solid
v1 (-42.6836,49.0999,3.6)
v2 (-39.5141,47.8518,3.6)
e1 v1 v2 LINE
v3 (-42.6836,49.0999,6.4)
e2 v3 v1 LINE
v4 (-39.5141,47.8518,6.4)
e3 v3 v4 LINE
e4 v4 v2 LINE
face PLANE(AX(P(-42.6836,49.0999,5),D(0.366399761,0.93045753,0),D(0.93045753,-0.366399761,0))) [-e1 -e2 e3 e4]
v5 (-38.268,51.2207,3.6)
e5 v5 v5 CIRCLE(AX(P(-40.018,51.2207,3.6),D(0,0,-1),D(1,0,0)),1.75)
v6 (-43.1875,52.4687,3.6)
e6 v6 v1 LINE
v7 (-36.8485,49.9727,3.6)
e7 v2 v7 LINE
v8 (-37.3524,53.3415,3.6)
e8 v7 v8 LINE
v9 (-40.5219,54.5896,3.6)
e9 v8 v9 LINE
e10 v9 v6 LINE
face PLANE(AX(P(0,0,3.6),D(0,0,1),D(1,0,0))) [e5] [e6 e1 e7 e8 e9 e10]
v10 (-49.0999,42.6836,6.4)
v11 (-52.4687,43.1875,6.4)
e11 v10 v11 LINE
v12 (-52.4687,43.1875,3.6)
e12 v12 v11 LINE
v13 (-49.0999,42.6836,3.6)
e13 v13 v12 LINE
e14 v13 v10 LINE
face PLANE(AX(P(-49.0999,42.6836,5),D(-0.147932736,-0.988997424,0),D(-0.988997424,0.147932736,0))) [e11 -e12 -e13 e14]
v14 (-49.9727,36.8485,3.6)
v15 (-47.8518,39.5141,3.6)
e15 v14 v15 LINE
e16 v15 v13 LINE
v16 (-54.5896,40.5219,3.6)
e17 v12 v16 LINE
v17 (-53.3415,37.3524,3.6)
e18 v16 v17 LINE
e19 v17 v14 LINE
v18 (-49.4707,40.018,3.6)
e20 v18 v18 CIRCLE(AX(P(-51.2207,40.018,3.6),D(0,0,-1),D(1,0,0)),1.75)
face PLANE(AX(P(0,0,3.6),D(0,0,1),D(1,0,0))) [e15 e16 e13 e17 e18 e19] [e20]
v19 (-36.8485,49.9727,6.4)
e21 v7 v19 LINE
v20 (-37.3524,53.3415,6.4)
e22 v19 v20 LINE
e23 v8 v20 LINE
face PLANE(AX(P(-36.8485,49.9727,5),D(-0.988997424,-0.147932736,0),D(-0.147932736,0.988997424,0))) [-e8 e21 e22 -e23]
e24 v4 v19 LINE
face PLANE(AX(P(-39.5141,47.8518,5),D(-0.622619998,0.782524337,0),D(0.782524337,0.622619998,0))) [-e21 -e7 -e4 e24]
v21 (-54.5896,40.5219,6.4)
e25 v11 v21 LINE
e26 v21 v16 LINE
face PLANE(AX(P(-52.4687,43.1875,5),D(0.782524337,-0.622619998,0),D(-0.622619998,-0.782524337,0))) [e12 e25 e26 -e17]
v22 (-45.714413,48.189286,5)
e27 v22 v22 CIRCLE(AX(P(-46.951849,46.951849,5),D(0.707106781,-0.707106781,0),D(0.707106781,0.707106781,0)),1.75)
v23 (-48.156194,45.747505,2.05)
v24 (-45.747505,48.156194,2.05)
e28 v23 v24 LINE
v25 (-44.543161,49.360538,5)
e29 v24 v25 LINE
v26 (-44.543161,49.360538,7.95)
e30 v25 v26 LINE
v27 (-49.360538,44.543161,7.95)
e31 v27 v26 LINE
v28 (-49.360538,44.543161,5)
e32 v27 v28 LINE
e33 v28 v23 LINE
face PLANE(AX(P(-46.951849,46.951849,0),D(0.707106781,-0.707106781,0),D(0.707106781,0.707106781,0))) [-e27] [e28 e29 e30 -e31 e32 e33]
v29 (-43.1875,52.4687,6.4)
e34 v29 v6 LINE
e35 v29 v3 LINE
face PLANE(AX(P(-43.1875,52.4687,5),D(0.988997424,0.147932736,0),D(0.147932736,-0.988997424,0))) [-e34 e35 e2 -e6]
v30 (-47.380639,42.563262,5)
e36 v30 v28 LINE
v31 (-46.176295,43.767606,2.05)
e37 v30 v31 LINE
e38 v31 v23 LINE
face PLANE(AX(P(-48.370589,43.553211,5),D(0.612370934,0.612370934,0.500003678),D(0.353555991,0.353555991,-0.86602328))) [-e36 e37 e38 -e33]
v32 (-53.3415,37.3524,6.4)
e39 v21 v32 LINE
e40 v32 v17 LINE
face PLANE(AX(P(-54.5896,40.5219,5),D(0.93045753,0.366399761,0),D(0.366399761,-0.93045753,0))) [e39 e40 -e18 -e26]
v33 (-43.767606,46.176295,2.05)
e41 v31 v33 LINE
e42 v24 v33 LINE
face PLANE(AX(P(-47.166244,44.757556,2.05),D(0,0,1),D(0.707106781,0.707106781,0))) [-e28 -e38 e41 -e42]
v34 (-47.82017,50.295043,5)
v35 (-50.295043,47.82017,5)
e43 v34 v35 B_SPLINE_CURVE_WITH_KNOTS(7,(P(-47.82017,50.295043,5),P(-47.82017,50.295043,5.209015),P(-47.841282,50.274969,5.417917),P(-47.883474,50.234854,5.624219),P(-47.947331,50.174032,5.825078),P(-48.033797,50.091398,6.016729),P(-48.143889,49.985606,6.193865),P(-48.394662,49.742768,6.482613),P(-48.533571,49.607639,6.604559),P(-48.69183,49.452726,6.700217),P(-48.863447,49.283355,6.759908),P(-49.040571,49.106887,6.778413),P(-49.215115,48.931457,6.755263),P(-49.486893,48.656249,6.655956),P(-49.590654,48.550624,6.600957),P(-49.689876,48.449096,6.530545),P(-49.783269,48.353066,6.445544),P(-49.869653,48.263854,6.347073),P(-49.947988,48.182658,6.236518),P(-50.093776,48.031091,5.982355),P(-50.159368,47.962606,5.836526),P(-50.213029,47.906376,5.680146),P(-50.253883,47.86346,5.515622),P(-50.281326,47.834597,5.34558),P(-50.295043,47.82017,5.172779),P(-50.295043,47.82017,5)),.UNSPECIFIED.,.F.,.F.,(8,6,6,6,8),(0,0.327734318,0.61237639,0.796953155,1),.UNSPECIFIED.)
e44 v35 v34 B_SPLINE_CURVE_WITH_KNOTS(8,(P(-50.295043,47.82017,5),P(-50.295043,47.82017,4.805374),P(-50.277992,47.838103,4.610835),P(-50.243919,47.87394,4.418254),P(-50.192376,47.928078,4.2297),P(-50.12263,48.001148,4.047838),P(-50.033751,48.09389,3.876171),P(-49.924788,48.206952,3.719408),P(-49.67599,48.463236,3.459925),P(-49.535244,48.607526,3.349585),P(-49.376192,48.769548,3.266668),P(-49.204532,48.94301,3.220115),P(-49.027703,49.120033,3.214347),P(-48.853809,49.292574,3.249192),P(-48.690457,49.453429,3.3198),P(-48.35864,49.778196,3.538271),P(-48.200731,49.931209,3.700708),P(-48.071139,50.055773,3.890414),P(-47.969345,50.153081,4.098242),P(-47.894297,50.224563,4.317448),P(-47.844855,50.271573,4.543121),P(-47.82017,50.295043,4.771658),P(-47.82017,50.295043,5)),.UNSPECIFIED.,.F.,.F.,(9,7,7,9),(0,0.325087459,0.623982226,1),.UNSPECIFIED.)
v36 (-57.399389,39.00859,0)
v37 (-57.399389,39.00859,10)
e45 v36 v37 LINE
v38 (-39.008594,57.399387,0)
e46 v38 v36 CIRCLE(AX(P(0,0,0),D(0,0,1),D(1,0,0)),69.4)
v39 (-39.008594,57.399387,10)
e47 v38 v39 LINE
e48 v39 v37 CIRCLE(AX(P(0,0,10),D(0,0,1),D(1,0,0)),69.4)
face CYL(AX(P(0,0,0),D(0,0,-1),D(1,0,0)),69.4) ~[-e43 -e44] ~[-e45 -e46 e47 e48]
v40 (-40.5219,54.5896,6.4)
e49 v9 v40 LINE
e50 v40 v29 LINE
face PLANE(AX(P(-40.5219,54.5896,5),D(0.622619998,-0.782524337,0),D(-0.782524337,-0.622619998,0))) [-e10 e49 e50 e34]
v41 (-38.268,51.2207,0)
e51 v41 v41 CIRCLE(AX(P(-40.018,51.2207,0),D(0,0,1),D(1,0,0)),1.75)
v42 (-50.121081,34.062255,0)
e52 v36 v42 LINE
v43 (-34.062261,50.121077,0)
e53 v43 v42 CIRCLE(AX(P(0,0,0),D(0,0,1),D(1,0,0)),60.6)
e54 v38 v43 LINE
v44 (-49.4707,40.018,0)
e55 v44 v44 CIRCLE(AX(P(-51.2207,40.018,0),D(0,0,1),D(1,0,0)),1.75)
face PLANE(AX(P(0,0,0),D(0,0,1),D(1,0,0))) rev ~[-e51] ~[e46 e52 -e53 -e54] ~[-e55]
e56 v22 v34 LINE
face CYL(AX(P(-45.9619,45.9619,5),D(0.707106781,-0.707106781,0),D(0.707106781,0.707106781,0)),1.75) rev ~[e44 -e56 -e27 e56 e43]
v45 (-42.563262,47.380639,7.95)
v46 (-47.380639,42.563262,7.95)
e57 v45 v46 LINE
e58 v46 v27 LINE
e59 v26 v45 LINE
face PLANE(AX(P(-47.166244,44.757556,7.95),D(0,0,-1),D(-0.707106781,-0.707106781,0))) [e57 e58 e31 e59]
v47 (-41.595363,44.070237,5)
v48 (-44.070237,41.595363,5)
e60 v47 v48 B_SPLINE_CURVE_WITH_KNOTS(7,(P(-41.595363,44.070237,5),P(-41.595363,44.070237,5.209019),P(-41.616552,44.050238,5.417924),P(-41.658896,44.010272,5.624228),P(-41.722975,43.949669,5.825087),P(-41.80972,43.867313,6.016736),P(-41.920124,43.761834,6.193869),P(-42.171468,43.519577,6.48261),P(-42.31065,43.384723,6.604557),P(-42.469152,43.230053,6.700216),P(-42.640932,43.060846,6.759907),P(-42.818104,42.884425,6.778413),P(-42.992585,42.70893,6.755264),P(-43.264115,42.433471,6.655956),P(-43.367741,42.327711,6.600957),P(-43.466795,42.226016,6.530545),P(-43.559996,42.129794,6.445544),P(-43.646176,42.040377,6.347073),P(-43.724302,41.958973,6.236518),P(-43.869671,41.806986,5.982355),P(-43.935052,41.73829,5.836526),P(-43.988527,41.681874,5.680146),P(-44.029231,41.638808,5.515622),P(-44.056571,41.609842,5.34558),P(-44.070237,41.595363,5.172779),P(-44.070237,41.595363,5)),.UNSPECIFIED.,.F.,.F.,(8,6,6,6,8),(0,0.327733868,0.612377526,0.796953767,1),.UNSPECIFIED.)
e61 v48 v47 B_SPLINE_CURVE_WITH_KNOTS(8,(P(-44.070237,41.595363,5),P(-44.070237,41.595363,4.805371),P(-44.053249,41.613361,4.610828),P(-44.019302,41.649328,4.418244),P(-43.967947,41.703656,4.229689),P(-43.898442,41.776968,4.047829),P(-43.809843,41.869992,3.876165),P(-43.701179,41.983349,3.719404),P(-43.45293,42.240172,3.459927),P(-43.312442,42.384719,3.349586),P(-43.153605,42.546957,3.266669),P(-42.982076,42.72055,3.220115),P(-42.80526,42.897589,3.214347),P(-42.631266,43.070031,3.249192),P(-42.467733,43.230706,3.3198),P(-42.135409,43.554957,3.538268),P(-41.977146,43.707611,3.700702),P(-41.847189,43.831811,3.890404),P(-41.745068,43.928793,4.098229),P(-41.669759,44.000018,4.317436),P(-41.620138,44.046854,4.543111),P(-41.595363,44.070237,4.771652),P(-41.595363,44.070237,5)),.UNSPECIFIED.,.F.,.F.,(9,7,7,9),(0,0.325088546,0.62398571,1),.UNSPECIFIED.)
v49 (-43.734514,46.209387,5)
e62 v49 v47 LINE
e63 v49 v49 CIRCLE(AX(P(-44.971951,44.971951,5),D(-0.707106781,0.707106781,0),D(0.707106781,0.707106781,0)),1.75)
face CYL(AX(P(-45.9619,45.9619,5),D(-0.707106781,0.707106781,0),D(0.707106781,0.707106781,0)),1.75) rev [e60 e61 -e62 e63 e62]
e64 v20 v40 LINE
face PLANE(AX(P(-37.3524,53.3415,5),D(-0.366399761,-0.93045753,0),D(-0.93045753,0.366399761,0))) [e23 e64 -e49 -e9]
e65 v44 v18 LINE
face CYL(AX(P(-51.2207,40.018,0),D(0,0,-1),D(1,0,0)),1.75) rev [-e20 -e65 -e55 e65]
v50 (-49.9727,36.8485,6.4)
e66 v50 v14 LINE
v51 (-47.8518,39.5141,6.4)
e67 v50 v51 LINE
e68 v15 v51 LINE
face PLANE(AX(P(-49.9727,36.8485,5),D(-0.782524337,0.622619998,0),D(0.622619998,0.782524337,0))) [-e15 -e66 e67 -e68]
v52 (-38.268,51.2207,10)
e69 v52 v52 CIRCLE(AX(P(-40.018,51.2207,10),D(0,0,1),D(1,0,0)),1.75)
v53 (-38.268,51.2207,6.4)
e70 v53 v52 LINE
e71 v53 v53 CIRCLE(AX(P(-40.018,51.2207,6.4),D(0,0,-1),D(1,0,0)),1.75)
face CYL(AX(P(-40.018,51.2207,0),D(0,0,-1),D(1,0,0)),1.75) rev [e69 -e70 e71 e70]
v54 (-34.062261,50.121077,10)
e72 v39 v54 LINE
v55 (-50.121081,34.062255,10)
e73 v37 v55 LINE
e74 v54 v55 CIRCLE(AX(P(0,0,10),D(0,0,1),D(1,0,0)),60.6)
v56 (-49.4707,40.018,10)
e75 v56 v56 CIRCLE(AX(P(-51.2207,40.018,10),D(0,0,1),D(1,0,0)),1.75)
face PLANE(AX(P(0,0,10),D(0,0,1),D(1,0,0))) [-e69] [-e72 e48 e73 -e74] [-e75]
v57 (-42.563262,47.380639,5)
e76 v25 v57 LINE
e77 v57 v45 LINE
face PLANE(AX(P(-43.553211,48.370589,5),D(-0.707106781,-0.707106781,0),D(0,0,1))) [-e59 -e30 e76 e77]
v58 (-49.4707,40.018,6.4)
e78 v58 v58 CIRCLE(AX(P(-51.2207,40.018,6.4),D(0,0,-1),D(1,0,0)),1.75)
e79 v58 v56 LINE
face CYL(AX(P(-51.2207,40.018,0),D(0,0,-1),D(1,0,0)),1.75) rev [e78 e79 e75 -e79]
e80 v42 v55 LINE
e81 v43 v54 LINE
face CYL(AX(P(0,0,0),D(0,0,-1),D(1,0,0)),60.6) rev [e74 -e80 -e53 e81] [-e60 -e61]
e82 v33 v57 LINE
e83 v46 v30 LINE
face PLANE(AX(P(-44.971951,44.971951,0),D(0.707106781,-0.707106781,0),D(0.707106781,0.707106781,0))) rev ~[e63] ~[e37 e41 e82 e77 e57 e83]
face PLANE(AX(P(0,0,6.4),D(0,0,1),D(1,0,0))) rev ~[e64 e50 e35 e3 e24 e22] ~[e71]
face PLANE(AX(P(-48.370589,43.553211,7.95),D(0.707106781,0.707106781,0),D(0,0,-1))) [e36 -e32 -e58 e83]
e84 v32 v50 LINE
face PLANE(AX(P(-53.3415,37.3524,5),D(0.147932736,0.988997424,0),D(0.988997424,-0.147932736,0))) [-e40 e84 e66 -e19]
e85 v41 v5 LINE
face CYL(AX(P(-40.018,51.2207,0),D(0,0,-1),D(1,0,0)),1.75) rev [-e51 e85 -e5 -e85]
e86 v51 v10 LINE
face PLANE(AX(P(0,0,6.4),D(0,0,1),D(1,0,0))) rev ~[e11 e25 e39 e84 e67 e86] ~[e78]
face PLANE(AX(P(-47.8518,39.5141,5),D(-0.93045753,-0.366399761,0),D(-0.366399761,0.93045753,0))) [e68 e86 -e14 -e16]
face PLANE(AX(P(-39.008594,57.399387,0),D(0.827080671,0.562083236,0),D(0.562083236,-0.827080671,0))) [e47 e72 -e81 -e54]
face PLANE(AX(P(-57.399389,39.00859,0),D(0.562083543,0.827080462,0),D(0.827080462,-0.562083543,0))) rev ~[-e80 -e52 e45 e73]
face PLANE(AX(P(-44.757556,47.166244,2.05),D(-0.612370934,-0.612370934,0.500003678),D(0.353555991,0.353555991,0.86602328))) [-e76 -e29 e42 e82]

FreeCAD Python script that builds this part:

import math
import FreeCAD as App
import Part
import Sketcher
from FreeCAD import Vector
Q = App.Units.Quantity

doc = App.newDocument("Part")
body = doc.addObject("PartDesign::Body", "Body")

sketch1 = body.newObject("Sketcher::SketchObject", "Sketch")
sketch1.AttachmentSupport = (doc.getObject("XY_Plane"), [""])
sketch1.MapMode = "FlatFace"
sketch1.addGeometry([
    Part.ArcOfCircle(Part.Circle(Vector(0, 0, 0), Vector(0, 0, 1), 60.6), math.radians(124), math.radians(146)),
    Part.LineSegment(Vector(-34.1, 50.1, 0), Vector(-39, 57.4, 0)),
    Part.ArcOfCircle(Part.Circle(Vector(0, 0, 0), Vector(0, 0, 1), 69.4), math.radians(124), math.radians(146)),
    Part.LineSegment(Vector(-57.4, 39, 0), Vector(-50.1, 34.1, 0)),
    Part.Circle(Vector(-51.2, 40, 0), Vector(0, 0, 1), 1.8),
    Part.Circle(Vector(-40, 51.2, 0), Vector(0, 0, 1), 1.8),
], False)
sketch1.addConstraint([
    Sketcher.Constraint("Coincident", 0, 1, 1, 1),
    Sketcher.Constraint("Coincident", 1, 2, 2, 1),
    Sketcher.Constraint("Coincident", 2, 2, 3, 1),
    Sketcher.Constraint("Coincident", 3, 2, 0, 2),
    Sketcher.Constraint("Coincident", 0, 3, -1, 1),
    Sketcher.Constraint("Coincident", 2, 3, -1, 1),
    Sketcher.Constraint("Equal", 4, 5),
    Sketcher.Constraint("Diameter", 4, Q("3.5 mm")),
    Sketcher.Constraint("Radius", 0, Q("60.6 mm")),
    Sketcher.Constraint("Radius", 2, Q("69.4 mm")),
    Sketcher.Constraint("Angle", 3, Q("-34.2 deg")),
    Sketcher.Constraint("Angle", 1, Q("124.2 deg")),
    Sketcher.Constraint("DistanceY", -1, 1, 4, 3, Q("40.018 mm")),
    Sketcher.Constraint("DistanceX", 5, 3, -1, 1, Q("40.018 mm")),
    Sketcher.Constraint("DistanceY", -1, 1, 0, 1, Q("50.121 mm")),
    Sketcher.Constraint("DistanceX", 3, 2, -1, 1, Q("50.121 mm")),
    Sketcher.Constraint("DistanceX", 4, 3, 1, 2, Q("12.212 mm")),
    Sketcher.Constraint("DistanceY", 2, 2, 5, 3, Q("12.212 mm")),
])
pad1 = body.newObject("PartDesign::Pad", "Pad")
pad1.Profile = sketch1
pad1.Length = 10

sketch2 = body.newObject("Sketcher::SketchObject", "Sketch001")
sketch2.Placement = App.Placement(Vector(-45.9619, 45.9619, 0), App.Rotation(Vector(0.707106781, 0.707106781, 0), Vector(0, 0, 0.999999999), Vector(0.707106781, -0.707106781, 0), "ZXY"))
sketch2.addGeometry([
    Part.LineSegment(Vector(-1.7, 2, 0), Vector(1.7, 2, 0)),
    Part.LineSegment(Vector(1.7, 2, 0), Vector(3.4, 5, 0)),
    Part.LineSegment(Vector(3.4, 5, 0), Vector(3.4, 7.9, 0)),
    Part.LineSegment(Vector(3.4, 7.9, 0), Vector(-3.4, 7.9, 0)),
    Part.LineSegment(Vector(-3.4, 7.9, 0), Vector(-3.4, 5, 0)),
    Part.LineSegment(Vector(-3.4, 5, 0), Vector(-1.7, 2, 0)),
], False)
sketch2.addConstraint([
    Sketcher.Constraint("Coincident", 0, 2, 1, 1),
    Sketcher.Constraint("Coincident", 1, 2, 2, 1),
    Sketcher.Constraint("Coincident", 2, 2, 3, 1),
    Sketcher.Constraint("Coincident", 3, 2, 4, 1),
    Sketcher.Constraint("Coincident", 4, 2, 5, 1),
    Sketcher.Constraint("Coincident", 5, 2, 0, 1),
    Sketcher.Constraint("Horizontal", 0),
    Sketcher.Constraint("Vertical", 2),
    Sketcher.Constraint("Horizontal", 3),
    Sketcher.Constraint("Vertical", 4),
    Sketcher.Constraint("Symmetric", 1, 2, 4, 2, -2),
    Sketcher.Constraint("Equal", 1, 5),
    Sketcher.Constraint("DistanceY", -1, 1, 1, 2, Q("5 mm")),
    Sketcher.Constraint("DistanceY", 0, 2, 2, 2, Q("5.9 mm")),
    Sketcher.Constraint("Angle", 1, Q("59.9998 deg")),
    Sketcher.Constraint("DistanceY", 2, 1, 2, 2, Q("2.95 mm")),
    Sketcher.Constraint("DistanceX", 0, 1, 0, 2, Q("3.4064 mm")),
])
pocket1 = body.newObject("PartDesign::Pocket", "Pocket")
pocket1.Profile = sketch2
pocket1.Length = 2.8
pocket1.Midplane = True

sketch3 = body.newObject("Sketcher::SketchObject", "Sketch002")
sketch3.AttachmentSupport = (doc.getObject("XY_Plane"), [""])
sketch3.MapMode = "FlatFace"
sketch3.AttachmentOffset = App.Placement(Vector(0, 0, 5), App.Rotation())
sketch3.addGeometry([
    Part.LineSegment(Vector(-39.5, 47.9, 0), Vector(-36.8, 50, 0)),
    Part.LineSegment(Vector(-36.8, 50, 0), Vector(-37.4, 53.3, 0)),
    Part.LineSegment(Vector(-37.4, 53.3, 0), Vector(-40.5, 54.6, 0)),
    Part.LineSegment(Vector(-40.5, 54.6, 0), Vector(-43.2, 52.5, 0)),
    Part.LineSegment(Vector(-43.2, 52.5, 0), Vector(-42.7, 49.1, 0)),
    Part.LineSegment(Vector(-42.7, 49.1, 0), Vector(-39.5, 47.9, 0)),
    Part.LineSegment(Vector(-50, 36.8, 0), Vector(-47.9, 39.5, 0)),
    Part.LineSegment(Vector(-47.9, 39.5, 0), Vector(-49.1, 42.7, 0)),
    Part.LineSegment(Vector(-49.1, 42.7, 0), Vector(-52.5, 43.2, 0)),
    Part.LineSegment(Vector(-52.5, 43.2, 0), Vector(-54.6, 40.5, 0)),
    Part.LineSegment(Vector(-54.6, 40.5, 0), Vector(-53.3, 37.4, 0)),
    Part.LineSegment(Vector(-53.3, 37.4, 0), Vector(-50, 36.8, 0)),
], False)
sketch3.addConstraint([
    Sketcher.Constraint("Coincident", 0, 2, 1, 1),
    Sketcher.Constraint("Coincident", 1, 2, 2, 1),
    Sketcher.Constraint("Coincident", 2, 2, 3, 1),
    Sketcher.Constraint("Coincident", 3, 2, 4, 1),
    Sketcher.Constraint("Coincident", 4, 2, 5, 1),
    Sketcher.Constraint("Coincident", 5, 2, 0, 1),
    Sketcher.Constraint("Coincident", 6, 2, 7, 1),
    Sketcher.Constraint("Coincident", 7, 2, 8, 1),
    Sketcher.Constraint("Coincident", 8, 2, 9, 1),
    Sketcher.Constraint("Coincident", 9, 2, 10, 1),
    Sketcher.Constraint("Coincident", 10, 2, 11, 1),
    Sketcher.Constraint("Coincident", 11, 2, 6, 1),
    Sketcher.Constraint("Parallel", 0, 3),
    Sketcher.Constraint("Parallel", 1, 4),
    Sketcher.Constraint("Parallel", 2, 5),
    Sketcher.Constraint("Parallel", 6, 9),
    Sketcher.Constraint("Parallel", 7, 10),
    Sketcher.Constraint("Parallel", 8, 11),
    Sketcher.Constraint("Equal", 0, 1),
    Sketcher.Constraint("Equal", 1, 2),
    Sketcher.Constraint("Equal", 2, 3),
    Sketcher.Constraint("Equal", 5, 6),
    Sketcher.Constraint("Equal", 6, 7),
    Sketcher.Constraint("Equal", 7, 8),
    Sketcher.Constraint("Equal", 8, 9),
    Sketcher.Constraint("DistanceY", -1, 1, 4, 2, Q("49.1 mm")),
    Sketcher.Constraint("DistanceX", 7, 2, -1, 1, Q("49.1 mm")),
    Sketcher.Constraint("DistanceX", 6, 2, 2, 2, Q("7.33 mm")),
    Sketcher.Constraint("DistanceX", 2, 2, -1, 1, Q("40.522 mm")),
    Sketcher.Constraint("DistanceX", 5, 2, -1, 1, Q("39.514 mm")),
    Sketcher.Constraint("DistanceY", -1, 1, 6, 2, Q("39.514 mm")),
    Sketcher.Constraint("DistanceY", -1, 1, 9, 2, Q("40.522 mm")),
    Sketcher.Constraint("DistanceX", 1, 2, 0, 2, Q("0.504 mm")),
    Sketcher.Constraint("DistanceY", 1, 2, 2, 2, Q("1.248 mm")),
    Sketcher.Constraint("DistanceY", 0, 2, 2, 2, Q("4.617 mm")),
    Sketcher.Constraint("DistanceY", 7, 2, 8, 2, Q("0.504 mm")),
])
pocket2 = body.newObject("PartDesign::Pocket", "Pocket001")
pocket2.Profile = sketch3
pocket2.Length = 2.8
pocket2.Midplane = True

sketch4 = body.newObject("Sketcher::SketchObject", "Sketch003")
sketch4.Placement = App.Placement(Vector(-45.9619, 45.9619, 0), App.Rotation(Vector(0.707106781, 0.707106781, 0), Vector(0, 0, 0.999999999), Vector(0.707106781, -0.707106781, 0), "ZXY"))
sketch4.addGeometry(Part.Circle(Vector(0, 5, 0), Vector(0, 0, 1), 1.8), False)
sketch4.addConstraint([
    Sketcher.Constraint("PointOnObject", 0, 3, -2),
    Sketcher.Constraint("Diameter", 0, Q("3.5 mm")),
    Sketcher.Constraint("DistanceY", -1, 1, 0, 3, Q("5 mm")),
])
pocket3 = body.newObject("PartDesign::Pocket", "Pocket002")
pocket3.Profile = sketch4
pocket3.Length = 30
pocket3.Midplane = True

doc.recompute()
